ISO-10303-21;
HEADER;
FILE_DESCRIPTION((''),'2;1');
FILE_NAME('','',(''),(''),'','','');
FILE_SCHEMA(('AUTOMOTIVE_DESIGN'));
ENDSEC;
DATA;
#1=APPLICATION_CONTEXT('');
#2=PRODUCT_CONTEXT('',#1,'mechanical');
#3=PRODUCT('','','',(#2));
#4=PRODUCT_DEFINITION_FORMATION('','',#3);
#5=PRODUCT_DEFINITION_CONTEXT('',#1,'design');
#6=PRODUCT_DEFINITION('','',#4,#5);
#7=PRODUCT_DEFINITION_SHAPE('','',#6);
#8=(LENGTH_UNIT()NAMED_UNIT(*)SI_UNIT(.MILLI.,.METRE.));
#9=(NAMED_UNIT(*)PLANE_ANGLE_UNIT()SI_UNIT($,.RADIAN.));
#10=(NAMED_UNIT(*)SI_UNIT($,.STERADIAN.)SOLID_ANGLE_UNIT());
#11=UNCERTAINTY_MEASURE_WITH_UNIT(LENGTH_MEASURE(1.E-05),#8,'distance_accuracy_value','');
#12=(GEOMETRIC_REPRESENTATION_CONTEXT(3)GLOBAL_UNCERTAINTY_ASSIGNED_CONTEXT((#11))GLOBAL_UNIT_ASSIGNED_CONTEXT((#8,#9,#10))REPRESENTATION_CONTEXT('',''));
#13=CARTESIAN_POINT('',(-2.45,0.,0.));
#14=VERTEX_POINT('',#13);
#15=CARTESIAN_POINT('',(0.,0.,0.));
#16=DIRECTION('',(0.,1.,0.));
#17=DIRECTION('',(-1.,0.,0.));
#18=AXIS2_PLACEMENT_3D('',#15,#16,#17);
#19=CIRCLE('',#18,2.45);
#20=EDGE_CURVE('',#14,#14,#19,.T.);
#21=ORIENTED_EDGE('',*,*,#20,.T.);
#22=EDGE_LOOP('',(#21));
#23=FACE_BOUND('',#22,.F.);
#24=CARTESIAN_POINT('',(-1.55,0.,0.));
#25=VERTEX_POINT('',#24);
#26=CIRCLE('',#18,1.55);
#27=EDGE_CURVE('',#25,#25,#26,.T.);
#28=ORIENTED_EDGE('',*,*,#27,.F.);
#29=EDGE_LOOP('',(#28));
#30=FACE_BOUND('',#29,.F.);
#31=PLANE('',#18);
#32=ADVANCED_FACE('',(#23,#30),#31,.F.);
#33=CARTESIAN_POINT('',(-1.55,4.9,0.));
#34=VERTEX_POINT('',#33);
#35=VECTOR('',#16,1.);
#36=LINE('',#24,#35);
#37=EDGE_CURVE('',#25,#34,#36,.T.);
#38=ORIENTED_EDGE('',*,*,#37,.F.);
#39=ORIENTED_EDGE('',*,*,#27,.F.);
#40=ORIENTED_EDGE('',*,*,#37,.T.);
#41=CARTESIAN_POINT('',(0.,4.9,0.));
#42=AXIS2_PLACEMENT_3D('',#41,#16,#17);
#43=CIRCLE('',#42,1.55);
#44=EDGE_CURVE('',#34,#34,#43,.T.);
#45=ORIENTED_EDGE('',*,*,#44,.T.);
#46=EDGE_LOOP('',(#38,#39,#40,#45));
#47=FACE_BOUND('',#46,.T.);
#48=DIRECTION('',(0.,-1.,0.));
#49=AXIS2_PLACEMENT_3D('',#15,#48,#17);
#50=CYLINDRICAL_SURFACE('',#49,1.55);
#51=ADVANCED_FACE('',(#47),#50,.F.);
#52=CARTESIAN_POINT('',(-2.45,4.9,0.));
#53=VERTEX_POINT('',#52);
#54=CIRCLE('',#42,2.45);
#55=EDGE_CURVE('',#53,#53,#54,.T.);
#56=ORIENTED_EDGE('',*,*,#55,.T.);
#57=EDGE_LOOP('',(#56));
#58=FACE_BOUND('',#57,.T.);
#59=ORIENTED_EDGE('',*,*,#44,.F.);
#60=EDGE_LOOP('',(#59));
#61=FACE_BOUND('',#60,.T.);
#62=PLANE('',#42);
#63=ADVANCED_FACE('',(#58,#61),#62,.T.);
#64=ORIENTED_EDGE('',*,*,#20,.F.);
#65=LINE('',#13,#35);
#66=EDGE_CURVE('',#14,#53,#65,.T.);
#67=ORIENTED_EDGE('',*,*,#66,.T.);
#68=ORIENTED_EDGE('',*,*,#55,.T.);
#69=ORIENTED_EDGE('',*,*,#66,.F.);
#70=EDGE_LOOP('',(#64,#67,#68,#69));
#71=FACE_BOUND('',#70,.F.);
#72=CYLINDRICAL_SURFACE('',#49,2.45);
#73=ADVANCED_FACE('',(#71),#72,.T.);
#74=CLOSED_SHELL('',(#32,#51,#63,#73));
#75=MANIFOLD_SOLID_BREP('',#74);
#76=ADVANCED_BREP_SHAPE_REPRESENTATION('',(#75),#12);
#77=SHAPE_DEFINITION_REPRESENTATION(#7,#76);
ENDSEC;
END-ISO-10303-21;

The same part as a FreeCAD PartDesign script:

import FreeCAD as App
import Part
import Sketcher
from FreeCAD import Vector
Q = App.Units.Quantity

doc = App.newDocument("Part")
body = doc.addObject("PartDesign::Body", "Body")

sketch1 = body.newObject("Sketcher::SketchObject", "Sketch")
sketch1.AttachmentSupport = (doc.getObject("XZ_Plane"), [""])
sketch1.MapMode = "FlatFace"
sketch1.addGeometry(Part.Circle(Vector(0, 0, 0), Vector(0, 0, 1), 2.5), False)
sketch1.addGeometry(Part.Circle(Vector(0, 0, 0), Vector(0, 0, 1), 1.6), False)
sketch1.addConstraint(Sketcher.Constraint("Coincident", 0, 3, -1, 1))
sketch1.addConstraint(Sketcher.Constraint("Coincident", 1, 3, -1, 1))
sketch1.addConstraint(Sketcher.Constraint("Diameter", 0, Q("4.9 mm")))
sketch1.addConstraint(Sketcher.Constraint("Diameter", 1, Q("3.1 mm")))
pad1 = body.newObject("PartDesign::Pad", "Pad")
pad1.Profile = sketch1
pad1.Length = 4.9
pad1.Reversed = True

doc.recompute()
